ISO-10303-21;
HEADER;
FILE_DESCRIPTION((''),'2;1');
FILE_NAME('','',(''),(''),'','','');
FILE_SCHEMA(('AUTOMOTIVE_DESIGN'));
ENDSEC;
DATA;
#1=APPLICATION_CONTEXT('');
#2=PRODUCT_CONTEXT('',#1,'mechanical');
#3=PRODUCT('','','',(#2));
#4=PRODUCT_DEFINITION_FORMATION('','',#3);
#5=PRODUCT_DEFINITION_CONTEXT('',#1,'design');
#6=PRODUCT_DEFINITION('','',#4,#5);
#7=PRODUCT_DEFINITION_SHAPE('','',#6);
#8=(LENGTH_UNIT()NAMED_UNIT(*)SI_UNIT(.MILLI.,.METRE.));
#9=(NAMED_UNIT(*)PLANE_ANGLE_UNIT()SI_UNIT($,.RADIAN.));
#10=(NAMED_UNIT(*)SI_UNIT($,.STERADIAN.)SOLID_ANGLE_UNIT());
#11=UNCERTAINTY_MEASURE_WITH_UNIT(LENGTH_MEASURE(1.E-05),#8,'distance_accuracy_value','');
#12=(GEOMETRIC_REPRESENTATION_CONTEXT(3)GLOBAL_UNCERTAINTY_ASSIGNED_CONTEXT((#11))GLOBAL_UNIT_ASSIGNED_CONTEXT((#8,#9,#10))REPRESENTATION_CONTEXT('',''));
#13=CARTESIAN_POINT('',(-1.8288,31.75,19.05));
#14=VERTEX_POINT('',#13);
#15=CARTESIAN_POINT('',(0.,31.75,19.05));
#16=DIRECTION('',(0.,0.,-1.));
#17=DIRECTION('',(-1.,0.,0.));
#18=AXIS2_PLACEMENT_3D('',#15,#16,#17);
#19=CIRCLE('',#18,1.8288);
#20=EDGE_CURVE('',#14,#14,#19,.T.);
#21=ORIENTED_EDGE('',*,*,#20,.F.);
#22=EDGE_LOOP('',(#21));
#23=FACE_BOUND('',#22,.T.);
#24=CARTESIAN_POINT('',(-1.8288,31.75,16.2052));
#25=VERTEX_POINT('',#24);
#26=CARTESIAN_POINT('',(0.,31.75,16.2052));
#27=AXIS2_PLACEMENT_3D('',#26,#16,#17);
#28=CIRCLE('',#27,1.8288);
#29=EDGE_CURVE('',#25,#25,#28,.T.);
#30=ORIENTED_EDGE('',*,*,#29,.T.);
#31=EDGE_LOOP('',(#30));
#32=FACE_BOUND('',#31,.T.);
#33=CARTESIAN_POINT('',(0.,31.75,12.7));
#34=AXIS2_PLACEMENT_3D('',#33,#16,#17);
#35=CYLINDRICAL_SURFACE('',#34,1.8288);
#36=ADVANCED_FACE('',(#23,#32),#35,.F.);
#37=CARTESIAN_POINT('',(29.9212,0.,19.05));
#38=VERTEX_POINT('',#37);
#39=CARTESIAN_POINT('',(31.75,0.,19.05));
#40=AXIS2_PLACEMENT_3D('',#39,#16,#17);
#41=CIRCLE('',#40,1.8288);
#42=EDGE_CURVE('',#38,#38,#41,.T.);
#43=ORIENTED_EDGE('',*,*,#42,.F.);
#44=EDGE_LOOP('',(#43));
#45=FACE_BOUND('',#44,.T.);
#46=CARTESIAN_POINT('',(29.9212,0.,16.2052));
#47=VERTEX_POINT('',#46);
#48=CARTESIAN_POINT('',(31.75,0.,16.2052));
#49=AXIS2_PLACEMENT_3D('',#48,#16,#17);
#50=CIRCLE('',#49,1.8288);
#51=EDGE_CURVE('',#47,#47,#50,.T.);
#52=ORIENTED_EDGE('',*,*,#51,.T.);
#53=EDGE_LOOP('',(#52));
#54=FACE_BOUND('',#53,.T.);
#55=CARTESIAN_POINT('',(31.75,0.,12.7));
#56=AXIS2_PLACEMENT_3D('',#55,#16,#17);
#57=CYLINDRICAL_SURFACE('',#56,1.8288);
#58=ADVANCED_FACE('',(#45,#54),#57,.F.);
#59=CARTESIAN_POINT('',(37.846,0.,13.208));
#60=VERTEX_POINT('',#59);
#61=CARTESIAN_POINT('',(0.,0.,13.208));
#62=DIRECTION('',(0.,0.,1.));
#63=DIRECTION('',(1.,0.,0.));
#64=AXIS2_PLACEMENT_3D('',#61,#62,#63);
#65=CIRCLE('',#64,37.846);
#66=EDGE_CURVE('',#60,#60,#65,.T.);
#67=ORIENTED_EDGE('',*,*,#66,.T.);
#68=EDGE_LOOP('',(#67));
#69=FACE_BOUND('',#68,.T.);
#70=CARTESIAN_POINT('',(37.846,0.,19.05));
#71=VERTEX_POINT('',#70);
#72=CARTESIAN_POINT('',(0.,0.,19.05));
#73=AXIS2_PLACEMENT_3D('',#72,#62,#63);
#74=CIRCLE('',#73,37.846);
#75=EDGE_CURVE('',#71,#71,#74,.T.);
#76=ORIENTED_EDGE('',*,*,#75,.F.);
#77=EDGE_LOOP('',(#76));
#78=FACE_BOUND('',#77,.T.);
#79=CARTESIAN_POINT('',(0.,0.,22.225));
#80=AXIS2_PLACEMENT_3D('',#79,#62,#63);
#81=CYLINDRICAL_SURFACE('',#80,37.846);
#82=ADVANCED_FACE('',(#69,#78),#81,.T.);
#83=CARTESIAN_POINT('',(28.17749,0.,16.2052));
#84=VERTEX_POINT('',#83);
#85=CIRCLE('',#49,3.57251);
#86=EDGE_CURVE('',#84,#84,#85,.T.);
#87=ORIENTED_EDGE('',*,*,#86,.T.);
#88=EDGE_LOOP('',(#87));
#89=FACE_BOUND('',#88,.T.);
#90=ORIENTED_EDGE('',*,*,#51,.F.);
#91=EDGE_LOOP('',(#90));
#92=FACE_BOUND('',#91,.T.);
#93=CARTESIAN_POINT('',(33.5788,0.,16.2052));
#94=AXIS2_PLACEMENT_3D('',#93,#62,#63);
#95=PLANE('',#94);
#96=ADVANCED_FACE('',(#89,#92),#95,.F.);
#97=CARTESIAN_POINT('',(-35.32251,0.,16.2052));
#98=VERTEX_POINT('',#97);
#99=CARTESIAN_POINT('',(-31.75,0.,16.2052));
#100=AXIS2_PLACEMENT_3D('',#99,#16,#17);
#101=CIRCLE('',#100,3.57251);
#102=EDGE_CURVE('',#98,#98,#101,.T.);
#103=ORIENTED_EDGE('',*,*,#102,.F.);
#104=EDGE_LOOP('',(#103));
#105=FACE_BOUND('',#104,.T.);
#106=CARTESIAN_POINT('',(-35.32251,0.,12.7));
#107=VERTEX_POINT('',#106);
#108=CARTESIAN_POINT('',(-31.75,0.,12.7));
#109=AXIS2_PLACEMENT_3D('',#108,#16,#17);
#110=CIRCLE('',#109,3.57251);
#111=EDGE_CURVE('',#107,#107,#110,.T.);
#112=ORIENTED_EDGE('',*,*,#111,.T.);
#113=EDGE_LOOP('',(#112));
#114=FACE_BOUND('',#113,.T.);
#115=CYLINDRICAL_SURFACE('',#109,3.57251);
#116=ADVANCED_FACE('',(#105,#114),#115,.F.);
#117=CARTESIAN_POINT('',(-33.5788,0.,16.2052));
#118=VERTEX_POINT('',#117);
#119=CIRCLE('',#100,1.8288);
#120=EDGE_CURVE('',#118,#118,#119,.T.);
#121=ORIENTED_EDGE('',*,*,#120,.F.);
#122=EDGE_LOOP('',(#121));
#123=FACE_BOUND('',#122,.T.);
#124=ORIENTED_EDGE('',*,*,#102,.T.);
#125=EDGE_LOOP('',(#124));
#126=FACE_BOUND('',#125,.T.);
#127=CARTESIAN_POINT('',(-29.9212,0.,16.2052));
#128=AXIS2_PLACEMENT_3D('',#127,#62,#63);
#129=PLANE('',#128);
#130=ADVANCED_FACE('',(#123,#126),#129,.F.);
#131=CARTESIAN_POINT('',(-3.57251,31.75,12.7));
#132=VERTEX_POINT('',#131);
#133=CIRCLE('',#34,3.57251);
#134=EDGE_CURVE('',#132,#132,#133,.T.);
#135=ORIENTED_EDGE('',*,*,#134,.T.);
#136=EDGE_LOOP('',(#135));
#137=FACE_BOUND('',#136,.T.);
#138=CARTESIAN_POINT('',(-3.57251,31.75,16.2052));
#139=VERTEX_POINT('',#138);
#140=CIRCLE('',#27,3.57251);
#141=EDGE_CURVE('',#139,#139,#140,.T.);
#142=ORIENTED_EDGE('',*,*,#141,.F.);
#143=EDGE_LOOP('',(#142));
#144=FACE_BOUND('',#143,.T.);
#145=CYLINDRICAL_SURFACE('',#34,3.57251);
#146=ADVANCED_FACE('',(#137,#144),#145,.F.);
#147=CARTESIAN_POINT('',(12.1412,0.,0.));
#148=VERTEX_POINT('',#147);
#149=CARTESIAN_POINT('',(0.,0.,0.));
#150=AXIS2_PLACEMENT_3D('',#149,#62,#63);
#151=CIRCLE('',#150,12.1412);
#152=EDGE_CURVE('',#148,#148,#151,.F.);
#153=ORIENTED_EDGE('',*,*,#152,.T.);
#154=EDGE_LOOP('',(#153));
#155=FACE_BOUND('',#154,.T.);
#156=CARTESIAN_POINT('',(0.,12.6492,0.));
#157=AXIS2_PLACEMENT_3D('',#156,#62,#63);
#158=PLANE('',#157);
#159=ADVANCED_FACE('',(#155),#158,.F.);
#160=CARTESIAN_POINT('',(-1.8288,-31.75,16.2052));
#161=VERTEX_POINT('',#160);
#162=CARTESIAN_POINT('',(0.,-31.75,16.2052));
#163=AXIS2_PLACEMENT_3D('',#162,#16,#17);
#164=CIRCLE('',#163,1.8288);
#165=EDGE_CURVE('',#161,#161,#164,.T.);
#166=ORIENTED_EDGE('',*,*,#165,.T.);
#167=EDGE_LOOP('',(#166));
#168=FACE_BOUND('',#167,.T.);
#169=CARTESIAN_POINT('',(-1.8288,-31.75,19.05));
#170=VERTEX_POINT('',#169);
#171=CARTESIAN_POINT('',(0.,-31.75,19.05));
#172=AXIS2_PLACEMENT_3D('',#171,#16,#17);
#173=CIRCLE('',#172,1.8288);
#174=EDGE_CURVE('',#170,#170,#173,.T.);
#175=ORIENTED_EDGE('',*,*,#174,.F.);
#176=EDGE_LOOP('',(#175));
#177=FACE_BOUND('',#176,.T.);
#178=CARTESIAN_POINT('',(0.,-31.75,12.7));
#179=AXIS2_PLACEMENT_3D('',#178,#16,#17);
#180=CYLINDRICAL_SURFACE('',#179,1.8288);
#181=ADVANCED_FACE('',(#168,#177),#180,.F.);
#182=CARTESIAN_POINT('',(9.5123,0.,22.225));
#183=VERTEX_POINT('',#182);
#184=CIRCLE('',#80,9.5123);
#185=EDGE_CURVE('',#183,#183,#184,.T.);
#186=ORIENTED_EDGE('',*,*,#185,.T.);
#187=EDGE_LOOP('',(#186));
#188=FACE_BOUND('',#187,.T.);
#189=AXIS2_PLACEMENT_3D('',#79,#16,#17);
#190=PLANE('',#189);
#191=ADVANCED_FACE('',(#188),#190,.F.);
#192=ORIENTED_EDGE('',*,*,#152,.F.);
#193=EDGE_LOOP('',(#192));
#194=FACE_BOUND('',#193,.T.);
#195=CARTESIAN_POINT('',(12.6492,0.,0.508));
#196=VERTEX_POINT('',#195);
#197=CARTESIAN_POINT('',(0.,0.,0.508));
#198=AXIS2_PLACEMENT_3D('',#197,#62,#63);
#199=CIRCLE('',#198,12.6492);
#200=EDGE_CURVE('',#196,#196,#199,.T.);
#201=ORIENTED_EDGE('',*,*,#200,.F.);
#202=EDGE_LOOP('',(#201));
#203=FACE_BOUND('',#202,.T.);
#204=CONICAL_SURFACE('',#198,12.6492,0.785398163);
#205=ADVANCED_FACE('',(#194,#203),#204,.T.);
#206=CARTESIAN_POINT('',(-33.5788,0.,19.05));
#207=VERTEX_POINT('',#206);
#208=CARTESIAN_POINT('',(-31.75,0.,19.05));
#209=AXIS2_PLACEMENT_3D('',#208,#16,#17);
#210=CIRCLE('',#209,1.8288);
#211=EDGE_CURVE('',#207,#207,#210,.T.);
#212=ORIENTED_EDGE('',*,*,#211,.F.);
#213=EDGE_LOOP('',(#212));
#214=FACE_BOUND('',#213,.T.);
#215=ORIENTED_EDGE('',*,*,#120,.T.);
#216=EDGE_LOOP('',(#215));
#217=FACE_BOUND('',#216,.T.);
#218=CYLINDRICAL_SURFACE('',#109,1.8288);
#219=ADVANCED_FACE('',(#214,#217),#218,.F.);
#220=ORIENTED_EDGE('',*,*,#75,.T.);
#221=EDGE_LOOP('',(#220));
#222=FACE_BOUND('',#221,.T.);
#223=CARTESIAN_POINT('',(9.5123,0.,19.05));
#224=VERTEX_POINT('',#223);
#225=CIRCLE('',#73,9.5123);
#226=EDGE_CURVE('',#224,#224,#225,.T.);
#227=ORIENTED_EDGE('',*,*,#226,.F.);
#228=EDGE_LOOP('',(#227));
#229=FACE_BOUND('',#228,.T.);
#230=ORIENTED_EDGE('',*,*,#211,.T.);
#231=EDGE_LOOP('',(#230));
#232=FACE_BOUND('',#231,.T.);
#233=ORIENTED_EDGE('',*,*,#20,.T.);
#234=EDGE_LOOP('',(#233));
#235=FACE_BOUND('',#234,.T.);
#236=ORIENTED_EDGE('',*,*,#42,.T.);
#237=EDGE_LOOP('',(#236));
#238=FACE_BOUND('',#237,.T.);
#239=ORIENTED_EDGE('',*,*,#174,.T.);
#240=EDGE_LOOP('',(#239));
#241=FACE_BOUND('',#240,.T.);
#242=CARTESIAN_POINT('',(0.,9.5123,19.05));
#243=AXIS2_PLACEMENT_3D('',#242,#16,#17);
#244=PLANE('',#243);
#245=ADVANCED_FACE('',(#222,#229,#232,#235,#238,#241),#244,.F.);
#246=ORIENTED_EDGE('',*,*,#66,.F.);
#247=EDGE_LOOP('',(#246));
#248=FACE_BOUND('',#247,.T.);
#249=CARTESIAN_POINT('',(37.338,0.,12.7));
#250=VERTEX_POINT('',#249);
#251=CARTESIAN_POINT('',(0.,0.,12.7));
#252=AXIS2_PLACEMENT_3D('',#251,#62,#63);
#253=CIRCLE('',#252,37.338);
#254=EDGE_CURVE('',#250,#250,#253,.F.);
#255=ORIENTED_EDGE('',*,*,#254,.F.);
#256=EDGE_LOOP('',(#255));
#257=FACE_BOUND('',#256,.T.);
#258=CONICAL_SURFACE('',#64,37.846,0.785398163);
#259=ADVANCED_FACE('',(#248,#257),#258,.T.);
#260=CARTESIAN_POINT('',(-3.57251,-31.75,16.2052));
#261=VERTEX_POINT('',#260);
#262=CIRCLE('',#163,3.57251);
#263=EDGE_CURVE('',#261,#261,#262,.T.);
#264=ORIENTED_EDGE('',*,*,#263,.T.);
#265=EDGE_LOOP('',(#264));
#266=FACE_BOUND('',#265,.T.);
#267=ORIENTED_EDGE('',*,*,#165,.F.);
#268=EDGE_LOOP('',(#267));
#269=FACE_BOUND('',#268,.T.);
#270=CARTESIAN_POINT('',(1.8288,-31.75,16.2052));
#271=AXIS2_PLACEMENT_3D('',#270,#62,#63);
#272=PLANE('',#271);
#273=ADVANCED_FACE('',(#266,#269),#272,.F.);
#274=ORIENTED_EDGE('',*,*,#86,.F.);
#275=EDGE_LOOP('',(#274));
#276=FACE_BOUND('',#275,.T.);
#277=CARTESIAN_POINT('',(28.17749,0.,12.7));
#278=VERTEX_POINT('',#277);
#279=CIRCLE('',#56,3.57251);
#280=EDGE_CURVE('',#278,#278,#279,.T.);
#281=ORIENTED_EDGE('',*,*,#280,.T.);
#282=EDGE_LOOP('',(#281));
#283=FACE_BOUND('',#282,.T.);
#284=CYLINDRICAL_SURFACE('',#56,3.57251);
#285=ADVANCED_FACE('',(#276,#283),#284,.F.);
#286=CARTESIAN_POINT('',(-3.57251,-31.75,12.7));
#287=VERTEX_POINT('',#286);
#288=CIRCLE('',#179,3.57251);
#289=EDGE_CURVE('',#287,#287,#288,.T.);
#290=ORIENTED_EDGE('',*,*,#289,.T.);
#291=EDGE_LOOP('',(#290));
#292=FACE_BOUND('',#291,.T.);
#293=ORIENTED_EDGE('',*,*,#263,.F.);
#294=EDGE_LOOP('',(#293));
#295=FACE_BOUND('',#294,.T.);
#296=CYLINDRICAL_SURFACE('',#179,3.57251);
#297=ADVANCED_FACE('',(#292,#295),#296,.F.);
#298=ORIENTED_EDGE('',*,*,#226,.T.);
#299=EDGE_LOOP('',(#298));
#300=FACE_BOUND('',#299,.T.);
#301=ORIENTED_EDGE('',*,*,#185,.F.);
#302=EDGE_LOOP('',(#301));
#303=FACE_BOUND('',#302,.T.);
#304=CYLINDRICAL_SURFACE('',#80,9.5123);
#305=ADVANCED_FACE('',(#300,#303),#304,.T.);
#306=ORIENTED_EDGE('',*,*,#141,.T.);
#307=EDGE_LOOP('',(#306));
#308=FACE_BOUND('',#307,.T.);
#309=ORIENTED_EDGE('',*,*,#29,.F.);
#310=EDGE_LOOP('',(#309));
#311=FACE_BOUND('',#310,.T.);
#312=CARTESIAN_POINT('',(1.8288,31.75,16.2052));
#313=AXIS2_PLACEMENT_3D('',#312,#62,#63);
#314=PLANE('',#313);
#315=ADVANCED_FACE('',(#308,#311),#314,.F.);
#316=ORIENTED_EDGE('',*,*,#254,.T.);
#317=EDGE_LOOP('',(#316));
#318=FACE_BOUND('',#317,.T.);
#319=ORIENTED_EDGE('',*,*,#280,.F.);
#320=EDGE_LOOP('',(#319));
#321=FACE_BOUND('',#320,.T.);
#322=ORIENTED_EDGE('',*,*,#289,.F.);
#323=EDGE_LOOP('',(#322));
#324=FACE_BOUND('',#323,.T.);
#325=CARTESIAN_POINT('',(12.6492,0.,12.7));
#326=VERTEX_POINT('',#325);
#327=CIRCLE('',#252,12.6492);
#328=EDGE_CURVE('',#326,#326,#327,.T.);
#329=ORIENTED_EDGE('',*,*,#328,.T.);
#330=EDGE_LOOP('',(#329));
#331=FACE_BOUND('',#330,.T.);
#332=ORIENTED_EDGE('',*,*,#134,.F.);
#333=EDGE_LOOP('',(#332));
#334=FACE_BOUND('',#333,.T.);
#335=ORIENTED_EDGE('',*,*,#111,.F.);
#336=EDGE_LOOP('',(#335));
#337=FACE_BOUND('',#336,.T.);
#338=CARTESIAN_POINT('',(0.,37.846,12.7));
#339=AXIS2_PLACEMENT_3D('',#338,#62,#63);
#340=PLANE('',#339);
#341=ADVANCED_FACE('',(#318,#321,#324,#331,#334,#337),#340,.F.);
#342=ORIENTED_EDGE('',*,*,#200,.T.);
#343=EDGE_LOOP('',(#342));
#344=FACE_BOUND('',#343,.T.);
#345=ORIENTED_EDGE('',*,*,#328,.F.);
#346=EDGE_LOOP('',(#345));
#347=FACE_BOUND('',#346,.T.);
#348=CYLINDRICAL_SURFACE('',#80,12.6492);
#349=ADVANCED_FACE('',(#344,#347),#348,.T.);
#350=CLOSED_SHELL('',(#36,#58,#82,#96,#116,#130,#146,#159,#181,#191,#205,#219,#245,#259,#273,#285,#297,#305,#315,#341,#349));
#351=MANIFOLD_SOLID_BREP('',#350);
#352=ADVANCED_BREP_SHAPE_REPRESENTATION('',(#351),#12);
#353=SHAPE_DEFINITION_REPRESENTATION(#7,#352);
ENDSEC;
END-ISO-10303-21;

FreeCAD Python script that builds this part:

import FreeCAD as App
import Part
import Sketcher
from FreeCAD import Vector
Q = App.Units.Quantity


def edges_at(feature, points):
    """Names of the edges that pass closest to the given points."""
    edges = feature.Shape.Edges
    near = lambda p: min(range(len(edges)), key=lambda i: edges[i].distToShape(Part.Vertex(*p))[0])
    return sorted({f"Edge{near(p) + 1}" for p in points})

doc = App.newDocument("Part")
body = doc.addObject("PartDesign::Body", "Body")

# Sketch on YZ plane
sketch1 = doc.addObject("Sketcher::SketchObject", "Sketch")
body.addObject(sketch1)
sketch1.AttachmentSupport = (doc.YZ_Plane, [""])
sketch1.MapMode = "FlatFace"
sketch1.addGeometry(Part.LineSegment(Vector(9.5, 22.2, 0), Vector(0, 22.2, 0)), False)
sketch1.addGeometry(Part.LineSegment(Vector(0, 22.2, 0), Vector(0, 0, 0)), False)
sketch1.addGeometry(Part.LineSegment(Vector(0, 0, 0), Vector(12.6, 0, 0)), False)
sketch1.addGeometry(Part.LineSegment(Vector(12.6, 0, 0), Vector(12.6, 12.7, 0)), False)
sketch1.addGeometry(Part.LineSegment(Vector(12.6, 12.7, 0), Vector(37.8, 12.7, 0)), False)
sketch1.addGeometry(Part.LineSegment(Vector(37.8, 12.7, 0), Vector(37.8, 19.1, 0)), False)
sketch1.addGeometry(Part.LineSegment(Vector(37.8, 19.1, 0), Vector(9.5, 19.1, 0)), False)
sketch1.addGeometry(Part.LineSegment(Vector(9.5, 19.1, 0), Vector(9.5, 22.2, 0)), False)
sketch1.addConstraint(Sketcher.Constraint("Coincident", 0, 2, 1, 1))
sketch1.addConstraint(Sketcher.Constraint("Coincident", 1, 2, 2, 1))
sketch1.addConstraint(Sketcher.Constraint("Coincident", 2, 2, 3, 1))
sketch1.addConstraint(Sketcher.Constraint("Coincident", 3, 2, 4, 1))
sketch1.addConstraint(Sketcher.Constraint("Coincident", 4, 2, 5, 1))
sketch1.addConstraint(Sketcher.Constraint("Coincident", 5, 2, 6, 1))
sketch1.addConstraint(Sketcher.Constraint("Coincident", 6, 2, 7, 1))
sketch1.addConstraint(Sketcher.Constraint("Coincident", 7, 2, 0, 1))
sketch1.addConstraint(Sketcher.Constraint("Horizontal", 0))
sketch1.addConstraint(Sketcher.Constraint("Vertical", 1))
sketch1.addConstraint(Sketcher.Constraint("Horizontal", 2))
sketch1.addConstraint(Sketcher.Constraint("Vertical", 3))
sketch1.addConstraint(Sketcher.Constraint("Horizontal", 4))
sketch1.addConstraint(Sketcher.Constraint("Vertical", 5))
sketch1.addConstraint(Sketcher.Constraint("Horizontal", 6))
sketch1.addConstraint(Sketcher.Constraint("Vertical", 7))
sketch1.addConstraint(Sketcher.Constraint("Coincident", 1, 2, -1, 1))
sketch1.addConstraint(Sketcher.Constraint("DistanceY", 3, 1, 3, 2, Q("0.5 in")))
sketch1.addConstraint(Sketcher.Constraint("DistanceY", 5, 1, 5, 2, Q("0.25 in")))
sketch1.addConstraint(Sketcher.Constraint("DistanceX", 2, 1, 2, 2, Q("0.498 in")))
sketch1.addConstraint(Sketcher.Constraint("DistanceX", 4, 1, 4, 2, Q("0.992 in")))
sketch1.addConstraint(Sketcher.Constraint("DistanceY", 1, 2, 1, 1, Q("0.875 in")))
sketch1.addConstraint(Sketcher.Constraint("DistanceX", 0, 2, 0, 1, Q("0.3745 in")))
revolution = doc.addObject("PartDesign::Revolution", "Revolution")
body.addObject(revolution)
revolution.Profile = sketch1
revolution.ReferenceAxis = (sketch1, ["V_Axis"])
revolution.Angle = 360

# Sketch on XY plane
sketch2 = doc.addObject("Sketcher::SketchObject", "Sketch001")
body.addObject(sketch2)
sketch2.AttachmentSupport = (doc.XY_Plane, [""])
sketch2.MapMode = "FlatFace"
sketch2.AttachmentOffset = App.Placement(Vector(0, 0, 0.5 * 25.4), App.Rotation())
sketch2.addGeometry(Part.Circle(Vector(31.8, 0, 0), Vector(0, 0, 1), 1.8), False)
sketch2.addGeometry(Part.Circle(Vector(0, 31.8, 0), Vector(0, 0, 1), 1.8), False)
sketch2.addGeometry(Part.Circle(Vector(-31.8, 0, 0), Vector(0, 0, 1), 1.8), False)
sketch2.addGeometry(Part.Circle(Vector(0, -31.8, 0), Vector(0, 0, 1), 1.8), False)
sketch2.addConstraint(Sketcher.Constraint("Equal", 0, 1))
sketch2.addConstraint(Sketcher.Constraint("Equal", 1, 2))
sketch2.addConstraint(Sketcher.Constraint("Equal", 2, 3))
sketch2.addConstraint(Sketcher.Constraint("Symmetric", 0, 3, 2, 3, -1, 1))
sketch2.addConstraint(Sketcher.Constraint("Symmetric", 1, 3, 3, 3, -1, 1))
sketch2.addConstraint(Sketcher.Constraint("PointOnObject", 0, 3, -1))
sketch2.addConstraint(Sketcher.Constraint("PointOnObject", 1, 3, -2))
sketch2.addConstraint(Sketcher.Constraint("Diameter", 0, Q("0.144 in")))
sketch2.addConstraint(Sketcher.Constraint("DistanceX", 2, 3, 0, 3, Q("2.5 in")))
sketch2.addConstraint(Sketcher.Constraint("DistanceY", 3, 3, 1, 3, Q("2.5 in")))
doc.recompute()
hole = doc.addObject("PartDesign::Hole", "Hole")
body.addObject(hole)
hole.Profile = sketch2
hole.ThreadType = "None"
hole.Diameter = Q("0.144 in")
hole.DepthType = "ThroughAll"
hole.HoleCutType = "Counterbore"
hole.HoleCutDiameter = Q("0.2813 in")
hole.HoleCutDepth = Q("0.138 in")
hole.Reversed = True
doc.recompute()

chamfer = doc.addObject("PartDesign::Chamfer", "Chamfer")
body.addObject(chamfer)
chamfer.Base = (hole, edges_at(hole, [(-12.649, 0, 0), (-37.846, 0, 12.7)]))
chamfer.Size = Q("0.02 in")

doc.recompute()
